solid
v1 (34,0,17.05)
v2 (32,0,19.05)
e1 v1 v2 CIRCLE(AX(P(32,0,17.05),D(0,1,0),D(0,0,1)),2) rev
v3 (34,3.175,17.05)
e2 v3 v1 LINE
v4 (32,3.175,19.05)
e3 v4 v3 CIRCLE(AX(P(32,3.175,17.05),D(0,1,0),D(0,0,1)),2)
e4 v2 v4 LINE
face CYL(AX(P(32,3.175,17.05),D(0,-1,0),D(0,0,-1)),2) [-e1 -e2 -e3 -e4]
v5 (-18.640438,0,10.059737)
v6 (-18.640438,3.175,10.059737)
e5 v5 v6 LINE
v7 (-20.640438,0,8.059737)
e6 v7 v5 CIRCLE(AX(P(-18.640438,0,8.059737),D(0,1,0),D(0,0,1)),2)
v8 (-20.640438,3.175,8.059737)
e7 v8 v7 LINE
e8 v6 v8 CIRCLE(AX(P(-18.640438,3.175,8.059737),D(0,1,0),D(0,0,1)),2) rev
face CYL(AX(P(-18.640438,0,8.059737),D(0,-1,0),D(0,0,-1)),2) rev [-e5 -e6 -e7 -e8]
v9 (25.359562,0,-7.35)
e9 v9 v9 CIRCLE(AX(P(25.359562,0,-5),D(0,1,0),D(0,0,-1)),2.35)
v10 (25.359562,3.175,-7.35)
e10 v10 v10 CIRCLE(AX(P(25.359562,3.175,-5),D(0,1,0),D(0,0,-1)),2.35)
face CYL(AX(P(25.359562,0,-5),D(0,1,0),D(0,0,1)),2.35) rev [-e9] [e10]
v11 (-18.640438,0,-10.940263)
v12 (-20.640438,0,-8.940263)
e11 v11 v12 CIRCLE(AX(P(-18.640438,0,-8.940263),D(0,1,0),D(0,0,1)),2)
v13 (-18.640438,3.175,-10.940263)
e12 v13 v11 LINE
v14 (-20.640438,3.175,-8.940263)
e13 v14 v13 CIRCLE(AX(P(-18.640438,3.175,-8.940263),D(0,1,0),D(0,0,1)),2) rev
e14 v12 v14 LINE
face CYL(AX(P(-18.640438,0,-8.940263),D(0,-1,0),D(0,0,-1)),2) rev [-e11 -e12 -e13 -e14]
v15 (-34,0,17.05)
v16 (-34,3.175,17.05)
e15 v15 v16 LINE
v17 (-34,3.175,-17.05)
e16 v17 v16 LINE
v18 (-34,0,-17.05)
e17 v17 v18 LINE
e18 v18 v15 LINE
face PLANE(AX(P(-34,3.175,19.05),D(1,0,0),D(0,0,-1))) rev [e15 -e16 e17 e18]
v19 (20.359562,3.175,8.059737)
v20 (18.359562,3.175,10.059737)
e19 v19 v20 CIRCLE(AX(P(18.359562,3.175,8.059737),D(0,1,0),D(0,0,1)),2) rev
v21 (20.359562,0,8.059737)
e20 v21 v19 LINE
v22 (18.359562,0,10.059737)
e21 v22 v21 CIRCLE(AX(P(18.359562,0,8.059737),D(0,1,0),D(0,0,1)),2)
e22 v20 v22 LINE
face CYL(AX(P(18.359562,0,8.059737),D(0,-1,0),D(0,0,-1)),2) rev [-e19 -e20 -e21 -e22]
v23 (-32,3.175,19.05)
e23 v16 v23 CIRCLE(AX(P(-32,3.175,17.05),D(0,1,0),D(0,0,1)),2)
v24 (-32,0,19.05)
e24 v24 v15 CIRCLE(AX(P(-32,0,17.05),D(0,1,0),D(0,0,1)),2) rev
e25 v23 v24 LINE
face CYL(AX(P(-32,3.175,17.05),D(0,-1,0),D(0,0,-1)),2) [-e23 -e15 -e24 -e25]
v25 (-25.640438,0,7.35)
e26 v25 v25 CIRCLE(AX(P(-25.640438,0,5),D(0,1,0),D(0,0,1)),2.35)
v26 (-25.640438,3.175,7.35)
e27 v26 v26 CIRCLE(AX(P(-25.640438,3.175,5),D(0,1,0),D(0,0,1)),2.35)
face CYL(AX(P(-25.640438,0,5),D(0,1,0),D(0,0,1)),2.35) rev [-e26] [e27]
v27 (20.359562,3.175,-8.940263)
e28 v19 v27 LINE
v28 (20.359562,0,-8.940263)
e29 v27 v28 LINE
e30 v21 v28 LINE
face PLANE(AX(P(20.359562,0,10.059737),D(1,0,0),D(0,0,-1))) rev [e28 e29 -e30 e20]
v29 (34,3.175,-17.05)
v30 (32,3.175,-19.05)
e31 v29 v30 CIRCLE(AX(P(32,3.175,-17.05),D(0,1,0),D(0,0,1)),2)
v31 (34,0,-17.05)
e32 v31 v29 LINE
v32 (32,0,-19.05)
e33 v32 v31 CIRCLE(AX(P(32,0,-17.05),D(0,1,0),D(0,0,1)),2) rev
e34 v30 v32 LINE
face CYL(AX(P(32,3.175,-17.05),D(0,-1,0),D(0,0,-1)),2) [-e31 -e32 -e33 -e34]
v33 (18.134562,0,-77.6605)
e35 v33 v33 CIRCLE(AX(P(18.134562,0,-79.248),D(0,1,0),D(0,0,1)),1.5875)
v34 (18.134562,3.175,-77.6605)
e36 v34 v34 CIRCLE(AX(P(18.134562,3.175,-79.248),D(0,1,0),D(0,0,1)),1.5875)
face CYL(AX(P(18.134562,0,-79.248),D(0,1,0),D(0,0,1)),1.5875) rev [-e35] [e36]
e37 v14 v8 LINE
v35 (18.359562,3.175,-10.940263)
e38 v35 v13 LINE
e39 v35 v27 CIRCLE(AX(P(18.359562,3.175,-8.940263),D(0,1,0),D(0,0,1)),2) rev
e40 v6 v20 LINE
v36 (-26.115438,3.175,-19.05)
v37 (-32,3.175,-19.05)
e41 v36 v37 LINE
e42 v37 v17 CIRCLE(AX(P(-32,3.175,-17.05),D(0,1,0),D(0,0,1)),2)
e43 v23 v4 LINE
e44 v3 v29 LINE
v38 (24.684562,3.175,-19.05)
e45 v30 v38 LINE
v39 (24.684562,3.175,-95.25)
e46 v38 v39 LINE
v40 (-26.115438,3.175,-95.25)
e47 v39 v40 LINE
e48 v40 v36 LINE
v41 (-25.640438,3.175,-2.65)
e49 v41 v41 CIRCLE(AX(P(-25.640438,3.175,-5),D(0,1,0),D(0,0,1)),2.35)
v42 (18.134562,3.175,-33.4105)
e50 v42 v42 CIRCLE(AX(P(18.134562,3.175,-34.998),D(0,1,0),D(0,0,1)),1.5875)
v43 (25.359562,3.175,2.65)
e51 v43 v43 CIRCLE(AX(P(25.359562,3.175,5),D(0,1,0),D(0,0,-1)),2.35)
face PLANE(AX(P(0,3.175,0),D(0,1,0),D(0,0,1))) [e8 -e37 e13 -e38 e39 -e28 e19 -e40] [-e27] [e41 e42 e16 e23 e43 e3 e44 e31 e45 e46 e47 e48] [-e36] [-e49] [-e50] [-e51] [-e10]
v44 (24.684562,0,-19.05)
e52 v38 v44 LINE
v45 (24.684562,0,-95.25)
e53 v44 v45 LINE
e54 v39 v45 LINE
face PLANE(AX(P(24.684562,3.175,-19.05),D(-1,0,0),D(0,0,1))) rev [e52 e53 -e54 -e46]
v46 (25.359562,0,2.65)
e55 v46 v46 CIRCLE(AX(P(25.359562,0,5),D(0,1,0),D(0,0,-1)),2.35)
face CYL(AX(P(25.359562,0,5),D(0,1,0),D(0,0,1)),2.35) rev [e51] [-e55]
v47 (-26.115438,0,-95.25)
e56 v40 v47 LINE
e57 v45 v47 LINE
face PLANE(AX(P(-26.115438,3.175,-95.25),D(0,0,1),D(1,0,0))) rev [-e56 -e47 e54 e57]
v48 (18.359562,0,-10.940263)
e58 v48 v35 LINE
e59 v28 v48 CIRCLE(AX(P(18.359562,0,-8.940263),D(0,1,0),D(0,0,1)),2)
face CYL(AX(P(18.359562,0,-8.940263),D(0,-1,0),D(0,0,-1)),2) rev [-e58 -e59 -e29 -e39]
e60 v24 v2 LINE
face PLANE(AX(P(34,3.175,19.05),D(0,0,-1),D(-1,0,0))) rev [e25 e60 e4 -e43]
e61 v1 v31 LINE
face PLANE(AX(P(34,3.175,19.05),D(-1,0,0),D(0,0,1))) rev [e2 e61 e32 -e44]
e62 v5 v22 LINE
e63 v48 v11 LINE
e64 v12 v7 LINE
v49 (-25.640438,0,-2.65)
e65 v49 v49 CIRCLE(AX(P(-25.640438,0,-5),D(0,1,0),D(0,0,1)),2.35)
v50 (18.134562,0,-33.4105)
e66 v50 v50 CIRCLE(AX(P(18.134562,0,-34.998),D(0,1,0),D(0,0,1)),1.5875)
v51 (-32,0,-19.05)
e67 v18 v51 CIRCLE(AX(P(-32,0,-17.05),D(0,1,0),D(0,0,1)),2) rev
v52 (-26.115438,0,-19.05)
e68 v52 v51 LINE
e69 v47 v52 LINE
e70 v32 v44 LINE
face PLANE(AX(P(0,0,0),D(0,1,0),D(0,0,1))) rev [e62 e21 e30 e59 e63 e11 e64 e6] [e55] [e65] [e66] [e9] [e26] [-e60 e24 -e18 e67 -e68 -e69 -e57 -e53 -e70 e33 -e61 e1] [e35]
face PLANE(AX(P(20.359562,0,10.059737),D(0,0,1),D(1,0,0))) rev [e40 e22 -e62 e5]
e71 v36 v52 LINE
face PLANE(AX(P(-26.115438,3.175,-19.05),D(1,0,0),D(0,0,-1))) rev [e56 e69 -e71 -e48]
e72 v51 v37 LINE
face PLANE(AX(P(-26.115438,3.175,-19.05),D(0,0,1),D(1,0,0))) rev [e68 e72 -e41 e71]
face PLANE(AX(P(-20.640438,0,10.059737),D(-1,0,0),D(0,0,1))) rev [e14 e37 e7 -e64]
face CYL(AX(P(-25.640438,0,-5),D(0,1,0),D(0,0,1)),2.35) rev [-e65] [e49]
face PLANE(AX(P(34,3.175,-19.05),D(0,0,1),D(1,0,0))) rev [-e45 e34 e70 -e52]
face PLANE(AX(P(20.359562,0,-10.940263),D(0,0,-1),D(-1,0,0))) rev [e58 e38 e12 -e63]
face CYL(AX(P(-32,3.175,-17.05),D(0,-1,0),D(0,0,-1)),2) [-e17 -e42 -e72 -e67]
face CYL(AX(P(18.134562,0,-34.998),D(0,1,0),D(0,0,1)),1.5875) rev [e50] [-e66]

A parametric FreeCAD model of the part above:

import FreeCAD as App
import Part
import Sketcher

V = App.Vector


def edges_at(feature, points):
    """Names of the edges that pass closest to the given points."""
    edges = feature.Shape.Edges
    near = lambda p: min(range(len(edges)), key=lambda i: edges[i].distToShape(Part.Vertex(*p))[0])
    return sorted({f"Edge{near(p) + 1}" for p in points})


def add_polygon(sketch, points):
    """Adds a closed chain of lines whose ends are joined by coincident constraints."""
    first, n = sketch.GeometryCount, len(points)
    for a, b in zip(points, points[1:] + points[:1]):
        sketch.addGeometry(Part.LineSegment(App.Vector(*a, 0), App.Vector(*b, 0)), False)
    for i in range(n):
        sketch.addConstraint(Sketcher.Constraint("Coincident", first + i, 2, first + (i + 1) % n, 1))

doc = App.newDocument("Part")
body = doc.addObject("PartDesign::Body", "Body")

sketch1 = doc.addObject("Sketcher::SketchObject", "Sketch")
body.addObject(sketch1)
sketch1.AttachmentSupport = (doc.XZ_Plane, [""])
sketch1.MapMode = "FlatFace"
add_polygon(sketch1, [(-26, -19), (-34, -19), (-34, 19), (34, 19), (34, -19), (25, -19), (25, -95), (-26, -95)])
sketch1.addConstraint(Sketcher.Constraint("Horizontal", 0))
sketch1.addConstraint(Sketcher.Constraint("Vertical", 1))
sketch1.addConstraint(Sketcher.Constraint("Horizontal", 2))
sketch1.addConstraint(Sketcher.Constraint("Vertical", 3))
sketch1.addConstraint(Sketcher.Constraint("Horizontal", 4))
sketch1.addConstraint(Sketcher.Constraint("Vertical", 5))
sketch1.addConstraint(Sketcher.Constraint("Horizontal", 6))
sketch1.addConstraint(Sketcher.Constraint("Vertical", 7))
sketch1.addConstraint(Sketcher.Constraint("Symmetric", 0, 2, 2, 2, -1, 1))
sketch1.addConstraint(Sketcher.Constraint("Horizontal", 0, 2, 3, 2))
sketch1.addConstraint(Sketcher.Constraint("DistanceX", 2, 1, 2, 2, 68.0))
sketch1.addConstraint(Sketcher.Constraint("DistanceX", 6, 2, 6, 1, 50.8))
sketch1.addConstraint(Sketcher.Constraint("DistanceY", 1, 1, 1, 2, 38.1))
sketch1.addConstraint(Sketcher.Constraint("DistanceY", 5, 2, 5, 1, 76.2))
sketch1.addConstraint(Sketcher.Constraint("DistanceX", 0, 2, 0, 1, 7.884562))
pad1 = doc.addObject("PartDesign::Pad", "Pad")
body.addObject(pad1)
pad1.Profile = sketch1
pad1.Length = 3.175
pad1.Reversed = True

sketch2 = doc.addObject("Sketcher::SketchObject", "Sketch001")
body.addObject(sketch2)
sketch2.AttachmentSupport = (doc.XZ_Plane, [""])
sketch2.MapMode = "FlatFace"
sketch2.AttachmentOffset = App.Placement(V(0, 0, -3.175), App.Rotation())
sketch2.addGeometry(Part.Circle(V(-25.6, -5, 0), V(0, 0, 1), 2.4), False)
sketch2.addGeometry(Part.Circle(V(-25.6, 5, 0), V(0, 0, 1), 2.4), False)
sketch2.addGeometry(Part.Circle(V(25.4, 5, 0), V(0, 0, 1), 2.4), False)
sketch2.addGeometry(Part.Circle(V(25.4, -5, 0), V(0, 0, 1), 2.4), False)
add_polygon(sketch2, [(-20.6, -10.9), (-20.6, 10.1), (20.4, 10.1), (20.4, -10.9)])
sketch2.addConstraint(Sketcher.Constraint("Vertical", 4))
sketch2.addConstraint(Sketcher.Constraint("Horizontal", 5))
sketch2.addConstraint(Sketcher.Constraint("Vertical", 6))
sketch2.addConstraint(Sketcher.Constraint("Horizontal", 7))
sketch2.addConstraint(Sketcher.Constraint("Equal", 0, 1))
sketch2.addConstraint(Sketcher.Constraint("Equal", 1, 2))
sketch2.addConstraint(Sketcher.Constraint("Equal", 2, 3))
sketch2.addConstraint(Sketcher.Constraint("Symmetric", 0, 3, 1, 3, -1))
sketch2.addConstraint(Sketcher.Constraint("Symmetric", 2, 3, 3, 3, -1))
sketch2.addConstraint(Sketcher.Constraint("Horizontal", 1, 3, 2, 3))
sketch2.addConstraint(Sketcher.Constraint("Diameter", 0, 4.7))
sketch2.addConstraint(Sketcher.Constraint("DistanceX", 5, 1, 5, 2, 41.0))
sketch2.addConstraint(Sketcher.Constraint("DistanceY", 4, 1, 4, 2, 21.0))
sketch2.addConstraint(Sketcher.Constraint("DistanceY", 0, 3, -1, 1, 5.0))
sketch2.addConstraint(Sketcher.Constraint("DistanceX", 1, 3, 2, 3, 51.0))
sketch2.addConstraint(Sketcher.Constraint("DistanceX", 1, 3, 4, 2, 5.0))
sketch2.addConstraint(Sketcher.Constraint("DistanceX", 0, 3, -1, 1, 25.640438))
sketch2.addConstraint(Sketcher.Constraint("DistanceY", -1, 1, 4, 2, 10.059737))
pocket1 = doc.addObject("PartDesign::Pocket", "Pocket")
body.addObject(pocket1)
pocket1.Profile = sketch2
pocket1.Type = "ThroughAll"
pocket1.Reversed = True
doc.recompute()

fillet = doc.addObject("PartDesign::Fillet", "Fillet")
body.addObject(fillet)
fillet.Base = (pocket1, edges_at(pocket1, [
    (-34, 1.587, -19.05),
    (34, 1.587, -19.05),
    (34, 1.587, 19.05),
    (-34, 1.587, 19.05),
    (-20.64, 1.587, 10.06),
    (-20.64, 1.587, -10.94),
    (20.36, 1.587, -10.94),
    (20.36, 1.587, 10.06),
]))
fillet.Radius = 2

sketch3 = doc.addObject("Sketcher::SketchObject", "Sketch002")
body.addObject(sketch3)
sketch3.AttachmentSupport = (doc.XZ_Plane, [""])
sketch3.MapMode = "FlatFace"
sketch3.AttachmentOffset = App.Placement(V(0, 0, -3.175), App.Rotation())
sketch3.addGeometry(Part.Circle(V(18.1, -79.2, 0), V(0, 0, 1), 1.6), False)
sketch3.addGeometry(Part.Circle(V(18.1, -35, 0), V(0, 0, 1), 1.6), False)
sketch3.addConstraint(Sketcher.Constraint("Equal", 0, 1))
sketch3.addConstraint(Sketcher.Constraint("Vertical", 0, 3, 1, 3))
sketch3.addConstraint(Sketcher.Constraint("Diameter", 0, 3.175))
sketch3.addConstraint(Sketcher.Constraint("DistanceY", 0, 3, 1, 3, 44.25))
sketch3.addConstraint(Sketcher.Constraint("DistanceY", 0, 3, -1, 1, 79.248))
sketch3.addConstraint(Sketcher.Constraint("DistanceX", -1, 1, 0, 3, 18.134562))
pocket2 = doc.addObject("PartDesign::Pocket", "Pocket001")
body.addObject(pocket2)
pocket2.Profile = sketch3
pocket2.Type = "ThroughAll"
pocket2.Reversed = True

doc.recompute()
